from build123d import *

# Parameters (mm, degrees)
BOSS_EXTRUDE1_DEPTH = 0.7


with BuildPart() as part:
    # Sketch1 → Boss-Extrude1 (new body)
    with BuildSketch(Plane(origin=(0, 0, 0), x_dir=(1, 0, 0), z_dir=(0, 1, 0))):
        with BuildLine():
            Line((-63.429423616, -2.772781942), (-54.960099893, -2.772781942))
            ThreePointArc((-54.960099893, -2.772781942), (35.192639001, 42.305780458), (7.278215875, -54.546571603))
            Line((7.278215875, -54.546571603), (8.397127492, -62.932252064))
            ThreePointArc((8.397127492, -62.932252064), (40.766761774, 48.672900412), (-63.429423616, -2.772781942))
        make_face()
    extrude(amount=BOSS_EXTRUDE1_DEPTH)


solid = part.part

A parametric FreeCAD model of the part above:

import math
import FreeCAD as App
import Part
import Sketcher
from FreeCAD import Vector
Q = App.Units.Quantity

doc = App.newDocument("Part")
body = doc.addObject("PartDesign::Body", "Body")

# Sketch on XZ plane
sketch1 = doc.addObject("Sketcher::SketchObject", "Sketch")
body.addObject(sketch1)
sketch1.AttachmentSupport = (doc.XZ_Plane, [""])
sketch1.MapMode = "FlatFace"
sketch1.addGeometry(Part.LineSegment(Vector(-63, 3, 0), Vector(-55, 3, 0)), False)
sketch1.addGeometry(Part.ArcOfCircle(Part.Circle(Vector(0, 0, 0), Vector(0, 0, 1), 55), math.radians(177), math.radians(442)), False)
sketch1.addGeometry(Part.LineSegment(Vector(7, 55, 0), Vector(8, 63, 0)), False)
sketch1.addGeometry(Part.ArcOfCircle(Part.Circle(Vector(0, 0, 0), Vector(0, 0, 1), 63), math.radians(177), math.radians(442)), False)
sketch1.addConstraint(Sketcher.Constraint("Coincident", 0, 2, 1, 1))
sketch1.addConstraint(Sketcher.Constraint("Coincident", 1, 2, 2, 1))
sketch1.addConstraint(Sketcher.Constraint("Coincident", 2, 2, 3, 2))
sketch1.addConstraint(Sketcher.Constraint("Coincident", 3, 1, 0, 1))
sketch1.addConstraint(Sketcher.Constraint("Horizontal", 0))
sketch1.addConstraint(Sketcher.Constraint("Coincident", 1, 3, -1, 1))
sketch1.addConstraint(Sketcher.Constraint("Coincident", 3, 3, -1, 1))
sketch1.addConstraint(Sketcher.Constraint("Radius", 1, Q("55.03 mm")))
sketch1.addConstraint(Sketcher.Constraint("Radius", 3, Q("63.49 mm")))
sketch1.addConstraint(Sketcher.Constraint("DistanceX", 0, 2, -1, 1, Q("54.9601 mm")))
sketch1.addConstraint(Sketcher.Constraint("DistanceY", -1, 1, 1, 2, Q("54.546572 mm")))
sketch1.addConstraint(Sketcher.Constraint("DistanceX", 1, 2, 2, 2, Q("1.118912 mm")))
pad1 = doc.addObject("PartDesign::Pad", "Pad")
body.addObject(pad1)
pad1.Profile = sketch1
pad1.Length = 0.7
pad1.Reversed = True

doc.recompute()
